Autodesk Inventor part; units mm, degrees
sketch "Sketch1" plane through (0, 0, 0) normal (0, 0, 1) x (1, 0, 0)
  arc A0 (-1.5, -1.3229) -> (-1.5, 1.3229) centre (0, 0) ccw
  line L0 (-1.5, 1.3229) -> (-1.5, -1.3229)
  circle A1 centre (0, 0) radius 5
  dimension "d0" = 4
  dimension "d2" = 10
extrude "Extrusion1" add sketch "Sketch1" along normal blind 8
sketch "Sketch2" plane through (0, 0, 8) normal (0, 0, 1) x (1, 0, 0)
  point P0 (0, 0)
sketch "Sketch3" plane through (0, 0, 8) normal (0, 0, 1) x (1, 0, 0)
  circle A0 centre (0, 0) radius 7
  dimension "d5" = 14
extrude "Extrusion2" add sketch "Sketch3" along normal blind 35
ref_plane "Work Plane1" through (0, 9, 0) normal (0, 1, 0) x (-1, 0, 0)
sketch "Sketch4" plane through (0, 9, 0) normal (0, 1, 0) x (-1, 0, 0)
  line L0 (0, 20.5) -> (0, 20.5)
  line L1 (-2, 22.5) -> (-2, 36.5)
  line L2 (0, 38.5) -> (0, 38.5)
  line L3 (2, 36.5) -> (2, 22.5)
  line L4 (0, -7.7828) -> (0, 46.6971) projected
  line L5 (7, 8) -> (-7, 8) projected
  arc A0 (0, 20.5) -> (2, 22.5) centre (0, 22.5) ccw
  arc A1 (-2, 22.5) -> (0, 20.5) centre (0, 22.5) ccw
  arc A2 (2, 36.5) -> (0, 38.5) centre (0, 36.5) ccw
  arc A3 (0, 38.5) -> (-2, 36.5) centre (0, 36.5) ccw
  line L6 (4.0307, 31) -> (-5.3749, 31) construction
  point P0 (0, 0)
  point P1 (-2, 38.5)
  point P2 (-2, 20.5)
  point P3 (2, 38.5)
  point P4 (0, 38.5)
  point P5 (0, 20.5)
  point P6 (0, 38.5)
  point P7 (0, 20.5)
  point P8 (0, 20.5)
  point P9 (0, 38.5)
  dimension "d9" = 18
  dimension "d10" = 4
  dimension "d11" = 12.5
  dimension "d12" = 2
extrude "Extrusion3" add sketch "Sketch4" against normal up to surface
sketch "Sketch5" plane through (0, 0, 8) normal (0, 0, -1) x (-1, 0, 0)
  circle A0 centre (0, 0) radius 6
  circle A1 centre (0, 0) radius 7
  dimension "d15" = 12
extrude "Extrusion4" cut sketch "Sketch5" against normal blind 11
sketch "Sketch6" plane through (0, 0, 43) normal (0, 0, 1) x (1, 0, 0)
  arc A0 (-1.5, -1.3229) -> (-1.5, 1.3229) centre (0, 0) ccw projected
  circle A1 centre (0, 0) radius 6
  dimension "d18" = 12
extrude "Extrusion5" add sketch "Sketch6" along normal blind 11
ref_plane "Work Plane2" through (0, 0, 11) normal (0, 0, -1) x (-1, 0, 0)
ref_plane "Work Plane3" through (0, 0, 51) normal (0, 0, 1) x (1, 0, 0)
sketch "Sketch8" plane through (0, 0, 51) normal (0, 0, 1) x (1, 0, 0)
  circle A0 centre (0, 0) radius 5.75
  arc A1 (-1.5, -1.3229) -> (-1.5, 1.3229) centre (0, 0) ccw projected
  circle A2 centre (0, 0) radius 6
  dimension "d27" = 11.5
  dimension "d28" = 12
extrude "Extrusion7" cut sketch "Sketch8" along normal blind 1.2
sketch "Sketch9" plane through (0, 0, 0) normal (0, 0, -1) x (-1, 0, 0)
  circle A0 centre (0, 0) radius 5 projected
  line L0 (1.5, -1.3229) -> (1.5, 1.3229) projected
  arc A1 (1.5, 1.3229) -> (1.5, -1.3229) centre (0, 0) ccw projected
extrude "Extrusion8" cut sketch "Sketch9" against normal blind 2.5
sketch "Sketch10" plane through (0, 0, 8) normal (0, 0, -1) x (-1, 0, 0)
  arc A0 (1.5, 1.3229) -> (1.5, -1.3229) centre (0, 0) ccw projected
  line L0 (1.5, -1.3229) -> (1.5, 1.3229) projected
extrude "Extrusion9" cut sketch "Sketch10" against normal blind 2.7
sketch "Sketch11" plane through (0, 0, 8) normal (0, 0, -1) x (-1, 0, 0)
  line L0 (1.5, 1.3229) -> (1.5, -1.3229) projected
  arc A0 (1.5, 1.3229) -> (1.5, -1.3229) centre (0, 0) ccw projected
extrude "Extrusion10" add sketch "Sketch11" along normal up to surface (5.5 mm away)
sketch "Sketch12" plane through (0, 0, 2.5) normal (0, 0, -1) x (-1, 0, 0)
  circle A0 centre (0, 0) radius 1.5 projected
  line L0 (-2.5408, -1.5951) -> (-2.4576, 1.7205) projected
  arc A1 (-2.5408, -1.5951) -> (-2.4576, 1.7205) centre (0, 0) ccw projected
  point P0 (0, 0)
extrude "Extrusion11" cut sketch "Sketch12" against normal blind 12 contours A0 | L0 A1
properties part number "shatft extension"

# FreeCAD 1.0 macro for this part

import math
import FreeCAD as App
import Part
import Sketcher
Q = App.Units.Quantity

doc = App.newDocument("Part")
body = doc.addObject("PartDesign::Body", "Body")

# Sketch on XY plane
sketch1 = doc.addObject("Sketcher::SketchObject", "Sketch")
body.addObject(sketch1)
sketch1.AttachmentSupport = (doc.XY_Plane, [""])
sketch1.MapMode = "FlatFace"
sketch1.addGeometry([
    Part.Circle(App.Vector(0, 0, 0), App.Vector(0, 0, 1), 5),
    Part.ArcOfCircle(Part.Circle(App.Vector(0, 0, 0), App.Vector(0, 0, 1), 2), math.radians(-139), math.radians(139)),
    Part.LineSegment(App.Vector(-1.5, -1.3, 0), App.Vector(-1.5, 1.3, 0)),
], False)
sketch1.addConstraint([
    Sketcher.Constraint("Coincident", 1, 1, 2, 1),
    Sketcher.Constraint("Coincident", 2, 2, 1, 2),
    Sketcher.Constraint("Vertical", 2),
    Sketcher.Constraint("Coincident", 0, 3, -1, 1),
    Sketcher.Constraint("Coincident", 1, 3, -1, 1),
    Sketcher.Constraint("Diameter", 0, Q("10 mm")),
    Sketcher.Constraint("Radius", 1, Q("2 mm")),
    Sketcher.Constraint("DistanceX", 1, 1, -1, 1, Q("1.5 mm")),
])
pad1 = doc.addObject("PartDesign::Pad", "Pad")
body.addObject(pad1)
pad1.Profile = sketch1
pad1.Length = 8

# Sketch on XY plane
sketch2 = doc.addObject("Sketcher::SketchObject", "Sketch001")
body.addObject(sketch2)
sketch2.AttachmentSupport = (doc.XY_Plane, [""])
sketch2.MapMode = "FlatFace"
sketch2.AttachmentOffset = App.Placement(App.Vector(0, 0, 8), App.Rotation())
sketch2.addGeometry(Part.Circle(App.Vector(0, 0, 0), App.Vector(0, 0, 1), 7), False)
sketch2.addConstraint([
    Sketcher.Constraint("Coincident", 0, 3, -1, 1),
    Sketcher.Constraint("Diameter", 0, Q("14 mm")),
])
pad2 = doc.addObject("PartDesign::Pad", "Pad001")
body.addObject(pad2)
pad2.Profile = sketch2
pad2.Length = 35

# Sketch on XZ plane
sketch3 = doc.addObject("Sketcher::SketchObject", "Sketch002")
body.addObject(sketch3)
sketch3.AttachmentSupport = (doc.XZ_Plane, [""])
sketch3.MapMode = "FlatFace"
sketch3.AttachmentOffset = App.Placement(App.Vector(0, 0, -9), App.Rotation())
sketch3.addGeometry([
    Part.LineSegment(App.Vector(2, 36.5, 0), App.Vector(2, 22.5, 0)),
    Part.ArcOfCircle(Part.Circle(App.Vector(0, 22.5, 0), App.Vector(0, 0, 1), 2), math.radians(180), math.radians(360)),
    Part.LineSegment(App.Vector(-2, 22.5, 0), App.Vector(-2, 36.5, 0)),
    Part.ArcOfCircle(Part.Circle(App.Vector(0, 36.5, 0), App.Vector(0, 0, 1), 2), math.radians(0), math.radians(180)),
], False)
sketch3.addConstraint([
    Sketcher.Constraint("Tangent", 0, 2, 1, 2),
    Sketcher.Constraint("Tangent", 1, 1, 2, 1),
    Sketcher.Constraint("Tangent", 2, 2, 3, 2),
    Sketcher.Constraint("Tangent", 3, 1, 0, 1),
    Sketcher.Constraint("Vertical", 0),
    Sketcher.Constraint("Vertical", 2),
    Sketcher.Constraint("PointOnObject", 1, 3, -2),
    Sketcher.Constraint("Radius", 1, Q("2 mm")),
    Sketcher.Constraint("DistanceY", 0, 2, 0, 1, Q("14 mm")),
    Sketcher.Constraint("DistanceY", -1, 1, 1, 3, Q("22.5 mm")),
])
pad3 = doc.addObject("PartDesign::Pad", "Pad002")
body.addObject(pad3)
pad3.Profile = sketch3
pad3.Type = "UpToFirst"

# Sketch on XY plane
sketch4 = doc.addObject("Sketcher::SketchObject", "Sketch003")
body.addObject(sketch4)
sketch4.AttachmentSupport = (doc.XY_Plane, [""])
sketch4.MapMode = "FlatFace"
sketch4.AttachmentOffset = App.Placement(App.Vector(0, 0, 8), App.Rotation())
sketch4.addGeometry([
    Part.Circle(App.Vector(0, 0, 0), App.Vector(0, 0, 1), 7),
    Part.Circle(App.Vector(0, 0, 0), App.Vector(0, 0, 1), 6),
], False)
sketch4.addConstraint([
    Sketcher.Constraint("Coincident", 0, 3, -1, 1),
    Sketcher.Constraint("Coincident", 1, 3, -1, 1),
    Sketcher.Constraint("Diameter", 1, Q("12 mm")),
    Sketcher.Constraint("Diameter", 0, Q("14 mm")),
])
pocket1 = doc.addObject("PartDesign::Pocket", "Pocket")
body.addObject(pocket1)
pocket1.Profile = sketch4
pocket1.Length = 11
pocket1.Reversed = True

# Sketch on XY plane
sketch5 = doc.addObject("Sketcher::SketchObject", "Sketch004")
body.addObject(sketch5)
sketch5.AttachmentSupport = (doc.XY_Plane, [""])
sketch5.MapMode = "FlatFace"
sketch5.AttachmentOffset = App.Placement(App.Vector(0, 0, 43), App.Rotation())
sketch5.addGeometry(Part.Circle(App.Vector(0, 0, 0), App.Vector(0, 0, 1), 6), False)
sketch5.addConstraint([
    Sketcher.Constraint("Coincident", 0, 3, -1, 1),
    Sketcher.Constraint("Diameter", 0, Q("12 mm")),
])
pad4 = doc.addObject("PartDesign::Pad", "Pad003")
body.addObject(pad4)
pad4.Profile = sketch5
pad4.Length = 11

# Sketch on XY plane
sketch6 = doc.addObject("Sketcher::SketchObject", "Sketch005")
body.addObject(sketch6)
sketch6.AttachmentSupport = (doc.XY_Plane, [""])
sketch6.MapMode = "FlatFace"
sketch6.AttachmentOffset = App.Placement(App.Vector(0, 0, 51), App.Rotation())
sketch6.addGeometry([
    Part.Circle(App.Vector(0, 0, 0), App.Vector(0, 0, 1), 6),
    Part.Circle(App.Vector(0, 0, 0), App.Vector(0, 0, 1), 6),
], False)
sketch6.addConstraint([
    Sketcher.Constraint("Coincident", 0, 3, -1, 1),
    Sketcher.Constraint("Coincident", 1, 3, -1, 1),
    Sketcher.Constraint("Diameter", 0, Q("12 mm")),
    Sketcher.Constraint("Diameter", 1, Q("11.5 mm")),
])
pocket2 = doc.addObject("PartDesign::Pocket", "Pocket001")
body.addObject(pocket2)
pocket2.Profile = sketch6
pocket2.Length = 1.2
pocket2.Reversed = True

# Sketch on XY plane
sketch7 = doc.addObject("Sketcher::SketchObject", "Sketch006")
body.addObject(sketch7)
sketch7.AttachmentSupport = (doc.XY_Plane, [""])
sketch7.MapMode = "FlatFace"
sketch7.addGeometry([
    Part.Circle(App.Vector(0, 0, 0), App.Vector(0, 0, 1), 5),
    Part.LineSegment(App.Vector(-1.5, 1.3, 0), App.Vector(-1.5, -1.3, 0)),
    Part.ArcOfCircle(Part.Circle(App.Vector(0, 0, 0), App.Vector(0, 0, 1), 2), math.radians(-139), math.radians(139)),
], False)
sketch7.addConstraint([
    Sketcher.Constraint("Coincident", 1, 1, 2, 2),
    Sketcher.Constraint("Coincident", 2, 1, 1, 2),
    Sketcher.Constraint("Vertical", 1),
    Sketcher.Constraint("Coincident", 0, 3, -1, 1),
    Sketcher.Constraint("Coincident", 2, 3, -1, 1),
    Sketcher.Constraint("Diameter", 0, Q("10 mm")),
    Sketcher.Constraint("Radius", 2, Q("2 mm")),
    Sketcher.Constraint("DistanceX", 1, 1, -1, 1, Q("1.5 mm")),
])
pocket3 = doc.addObject("PartDesign::Pocket", "Pocket002")
body.addObject(pocket3)
pocket3.Profile = sketch7
pocket3.Length = 2.5
pocket3.Reversed = True

# Sketch on XY plane
sketch8 = doc.addObject("Sketcher::SketchObject", "Sketch007")
body.addObject(sketch8)
sketch8.AttachmentSupport = (doc.XY_Plane, [""])
sketch8.MapMode = "FlatFace"
sketch8.AttachmentOffset = App.Placement(App.Vector(0, 0, 8), App.Rotation())
sketch8.addGeometry([
    Part.LineSegment(App.Vector(-1.5, -1.3, 0), App.Vector(-1.5, 1.3, 0)),
    Part.ArcOfCircle(Part.Circle(App.Vector(0, 0, 0), App.Vector(0, 0, 1), 2), math.radians(-139), math.radians(139)),
], False)
sketch8.addConstraint([
    Sketcher.Constraint("Coincident", 0, 1, 1, 1),
    Sketcher.Constraint("Coincident", 1, 2, 0, 2),
    Sketcher.Constraint("Vertical", 0),
    Sketcher.Constraint("Coincident", 1, 3, -1, 1),
    Sketcher.Constraint("Radius", 1, Q("2 mm")),
    Sketcher.Constraint("DistanceX", 0, 1, -1, 1, Q("1.5 mm")),
])
pocket4 = doc.addObject("PartDesign::Pocket", "Pocket003")
body.addObject(pocket4)
pocket4.Profile = sketch8
pocket4.Length = 2.7
pocket4.Reversed = True

# Sketch on XY plane
sketch9 = doc.addObject("Sketcher::SketchObject", "Sketch008")
body.addObject(sketch9)
sketch9.AttachmentSupport = (doc.XY_Plane, [""])
sketch9.MapMode = "FlatFace"
sketch9.AttachmentOffset = App.Placement(App.Vector(0, 0, 8), App.Rotation())
sketch9.addGeometry([
    Part.LineSegment(App.Vector(-1.5, -1.3, 0), App.Vector(-1.5, 1.3, 0)),
    Part.ArcOfCircle(Part.Circle(App.Vector(0, 0, 0), App.Vector(0, 0, 1), 2), math.radians(-139), math.radians(139)),
], False)
sketch9.addConstraint([
    Sketcher.Constraint("Coincident", 0, 1, 1, 1),
    Sketcher.Constraint("Coincident", 1, 2, 0, 2),
    Sketcher.Constraint("Vertical", 0),
    Sketcher.Constraint("Coincident", 1, 3, -1, 1),
    Sketcher.Constraint("Radius", 1, Q("2 mm")),
    Sketcher.Constraint("DistanceX", 0, 1, -1, 1, Q("1.5 mm")),
])
pad5 = doc.addObject("PartDesign::Pad", "Pad004")
body.addObject(pad5)
pad5.Profile = sketch9
pad5.Length = 5.5
pad5.Reversed = True

# Sketch on XY plane
sketch10 = doc.addObject("Sketcher::SketchObject", "Sketch009")
body.addObject(sketch10)
sketch10.AttachmentSupport = (doc.XY_Plane, [""])
sketch10.MapMode = "FlatFace"
sketch10.AttachmentOffset = App.Placement(App.Vector(0, 0, 2.5), App.Rotation())
sketch10.addGeometry([
    Part.LineSegment(App.Vector(2.5, 1.7, 0), App.Vector(2.5, -1.6, 0)),
    Part.ArcOfCircle(Part.Circle(App.Vector(0, 0, 0), App.Vector(0, 0, 1), 3), math.radians(35), math.radians(328)),
], False)
sketch10.addConstraint([
    Sketcher.Constraint("Coincident", 0, 1, 1, 1),
    Sketcher.Constraint("Coincident", 1, 2, 0, 2),
    Sketcher.Constraint("Coincident", 1, 3, -1, 1),
    Sketcher.Constraint("Radius", 1, Q("3 mm")),
    Sketcher.Constraint("DistanceY", 1, 2, -1, 1, Q("1.595 mm")),
    Sketcher.Constraint("Distance", 0, Q("3.3166 mm")),
])
pocket5 = doc.addObject("PartDesign::Pocket", "Pocket004")
body.addObject(pocket5)
pocket5.Profile = sketch10
pocket5.Length = 12
pocket5.Reversed = True

doc.recompute()
